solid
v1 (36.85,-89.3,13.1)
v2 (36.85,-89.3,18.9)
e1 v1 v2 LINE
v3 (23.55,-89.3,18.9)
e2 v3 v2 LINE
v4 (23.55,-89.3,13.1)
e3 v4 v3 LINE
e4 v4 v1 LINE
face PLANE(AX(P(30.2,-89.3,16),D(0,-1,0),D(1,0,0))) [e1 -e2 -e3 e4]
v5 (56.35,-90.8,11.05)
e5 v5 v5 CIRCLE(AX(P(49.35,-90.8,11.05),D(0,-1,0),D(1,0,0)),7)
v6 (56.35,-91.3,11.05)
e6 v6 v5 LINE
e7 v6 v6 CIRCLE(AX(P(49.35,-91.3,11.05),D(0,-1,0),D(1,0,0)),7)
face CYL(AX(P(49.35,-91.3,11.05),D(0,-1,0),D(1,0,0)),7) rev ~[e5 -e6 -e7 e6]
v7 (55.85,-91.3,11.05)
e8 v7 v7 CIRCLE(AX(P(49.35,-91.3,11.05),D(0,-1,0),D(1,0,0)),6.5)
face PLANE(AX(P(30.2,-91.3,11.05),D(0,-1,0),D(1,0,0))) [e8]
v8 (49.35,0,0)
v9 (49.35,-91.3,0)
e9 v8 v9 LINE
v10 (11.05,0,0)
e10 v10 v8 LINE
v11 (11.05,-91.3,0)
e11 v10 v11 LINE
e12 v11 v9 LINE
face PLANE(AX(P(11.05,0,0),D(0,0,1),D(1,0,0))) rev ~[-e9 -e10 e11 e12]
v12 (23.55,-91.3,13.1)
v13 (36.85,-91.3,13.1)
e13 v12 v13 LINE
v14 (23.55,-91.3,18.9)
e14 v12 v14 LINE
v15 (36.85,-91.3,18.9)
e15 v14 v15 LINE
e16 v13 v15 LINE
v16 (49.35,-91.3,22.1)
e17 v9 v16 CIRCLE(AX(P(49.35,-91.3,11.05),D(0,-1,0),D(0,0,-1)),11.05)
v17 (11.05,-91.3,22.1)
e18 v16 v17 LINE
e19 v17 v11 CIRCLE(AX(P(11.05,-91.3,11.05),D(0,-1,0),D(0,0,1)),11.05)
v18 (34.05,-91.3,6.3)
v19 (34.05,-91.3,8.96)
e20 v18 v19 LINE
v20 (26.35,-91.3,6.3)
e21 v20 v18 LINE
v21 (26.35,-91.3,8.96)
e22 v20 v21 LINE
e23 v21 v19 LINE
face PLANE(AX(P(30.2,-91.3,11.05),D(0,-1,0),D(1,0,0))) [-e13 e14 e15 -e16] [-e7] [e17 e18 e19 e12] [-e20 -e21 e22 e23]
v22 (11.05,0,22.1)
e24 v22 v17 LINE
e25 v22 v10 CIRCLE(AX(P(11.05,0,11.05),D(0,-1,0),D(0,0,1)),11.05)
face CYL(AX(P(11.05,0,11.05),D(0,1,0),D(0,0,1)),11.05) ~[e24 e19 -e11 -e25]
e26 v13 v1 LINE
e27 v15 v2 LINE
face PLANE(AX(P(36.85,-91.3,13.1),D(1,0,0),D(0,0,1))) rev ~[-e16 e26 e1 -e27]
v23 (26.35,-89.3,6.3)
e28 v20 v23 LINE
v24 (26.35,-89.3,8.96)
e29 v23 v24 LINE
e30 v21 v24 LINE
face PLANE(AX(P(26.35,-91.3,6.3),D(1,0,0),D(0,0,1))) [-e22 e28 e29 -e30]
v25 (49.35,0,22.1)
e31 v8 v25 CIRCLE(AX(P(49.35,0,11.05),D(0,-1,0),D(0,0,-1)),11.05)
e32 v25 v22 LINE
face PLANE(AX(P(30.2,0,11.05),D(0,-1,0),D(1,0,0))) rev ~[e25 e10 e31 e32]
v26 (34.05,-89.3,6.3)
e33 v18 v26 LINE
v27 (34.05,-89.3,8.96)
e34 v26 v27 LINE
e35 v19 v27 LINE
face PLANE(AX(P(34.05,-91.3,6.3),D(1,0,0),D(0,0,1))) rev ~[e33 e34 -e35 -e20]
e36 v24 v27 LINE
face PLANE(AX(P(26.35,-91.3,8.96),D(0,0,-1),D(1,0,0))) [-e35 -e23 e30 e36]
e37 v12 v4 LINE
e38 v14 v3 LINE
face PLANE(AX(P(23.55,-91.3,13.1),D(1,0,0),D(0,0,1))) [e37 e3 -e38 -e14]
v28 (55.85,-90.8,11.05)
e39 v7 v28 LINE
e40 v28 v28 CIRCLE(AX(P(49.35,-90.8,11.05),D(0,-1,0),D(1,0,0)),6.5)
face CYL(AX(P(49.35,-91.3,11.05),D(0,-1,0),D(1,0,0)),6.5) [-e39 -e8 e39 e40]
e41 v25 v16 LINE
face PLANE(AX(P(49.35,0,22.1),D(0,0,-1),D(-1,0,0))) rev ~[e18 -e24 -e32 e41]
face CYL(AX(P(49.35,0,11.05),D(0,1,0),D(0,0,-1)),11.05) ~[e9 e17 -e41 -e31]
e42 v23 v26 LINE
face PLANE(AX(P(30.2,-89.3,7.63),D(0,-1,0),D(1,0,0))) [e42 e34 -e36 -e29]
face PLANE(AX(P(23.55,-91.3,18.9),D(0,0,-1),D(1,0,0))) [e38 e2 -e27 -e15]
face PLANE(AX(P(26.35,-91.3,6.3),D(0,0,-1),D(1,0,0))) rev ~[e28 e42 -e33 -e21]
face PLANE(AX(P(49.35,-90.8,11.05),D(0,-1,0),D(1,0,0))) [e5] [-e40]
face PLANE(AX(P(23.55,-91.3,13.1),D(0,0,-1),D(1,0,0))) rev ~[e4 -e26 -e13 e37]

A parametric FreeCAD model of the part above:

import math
import FreeCAD as App
import Part
import Sketcher
Q = App.Units.Quantity

doc = App.newDocument("Part")
body = doc.addObject("PartDesign::Body", "Body")

# Sketch on XZ plane
sketch1 = body.newObject("Sketcher::SketchObject", "Sketch")
sketch1.AttachmentSupport = (doc.getObject("XZ_Plane"), [""])
sketch1.MapMode = "FlatFace"
sketch1.addGeometry([
    Part.LineSegment(App.Vector(49.35, 22.1, 0), App.Vector(11.05, 22.1, 0)),
    Part.ArcOfCircle(Part.Circle(App.Vector(11.05, 11.05, 0), App.Vector(0, 0, 1), 11.05), math.radians(90), math.radians(270)),
    Part.LineSegment(App.Vector(11.05, 0, 0), App.Vector(49.35, 0, 0)),
    Part.ArcOfCircle(Part.Circle(App.Vector(49.35, 11.05, 0), App.Vector(0, 0, 1), 11.05), math.radians(-90), math.radians(90)),
], False)
sketch1.addConstraint([
    Sketcher.Constraint("Tangent", 0, 2, 1, 1),
    Sketcher.Constraint("Tangent", 1, 2, 2, 1),
    Sketcher.Constraint("Tangent", 2, 2, 3, 1),
    Sketcher.Constraint("Tangent", 3, 2, 0, 1),
    Sketcher.Constraint("Horizontal", 0),
    Sketcher.Constraint("Horizontal", 2),
    Sketcher.Constraint("PointOnObject", 1, 2, -1),
    Sketcher.Constraint("Radius", 1, Q("11.05 mm")),
    Sketcher.Constraint("DistanceX", 0, 2, 0, 1, Q("38.3 mm")),
    Sketcher.Constraint("DistanceX", -1, 1, 1, 3, Q("11.05 mm")),
])
pad1 = body.newObject("PartDesign::Pad", "Pad")
pad1.Profile = sketch1
pad1.Length = 91.3

# Sketch on XZ plane
sketch2 = body.newObject("Sketcher::SketchObject", "Sketch001")
sketch2.AttachmentSupport = (doc.getObject("XZ_Plane"), [""])
sketch2.MapMode = "FlatFace"
sketch2.AttachmentOffset = App.Placement(App.Vector(0, 0, 91.3), App.Rotation())
sketch2.addGeometry([
    Part.LineSegment(App.Vector(23.55, 18.9, 0), App.Vector(23.55, 13.1, 0)),  # 0
    Part.LineSegment(App.Vector(23.55, 13.1, 0), App.Vector(36.85, 13.1, 0)),  # 1
    Part.LineSegment(App.Vector(36.85, 13.1, 0), App.Vector(36.85, 18.9, 0)),  # 2
    Part.LineSegment(App.Vector(36.85, 18.9, 0), App.Vector(23.55, 18.9, 0)),  # 3
    Part.LineSegment(App.Vector(26.35, 8.96, 0), App.Vector(26.35, 6.3, 0)),  # 4
    Part.LineSegment(App.Vector(26.35, 6.3, 0), App.Vector(34.05, 6.3, 0)),  # 5
    Part.LineSegment(App.Vector(34.05, 6.3, 0), App.Vector(34.05, 8.96, 0)),  # 6
    Part.LineSegment(App.Vector(34.05, 8.96, 0), App.Vector(26.35, 8.96, 0)),  # 7
], False)
sketch2.addConstraint([
    Sketcher.Constraint("Coincident", 0, 2, 1, 1),
    Sketcher.Constraint("Coincident", 1, 2, 2, 1),
    Sketcher.Constraint("Coincident", 2, 2, 3, 1),
    Sketcher.Constraint("Coincident", 3, 2, 0, 1),
    Sketcher.Constraint("Coincident", 4, 2, 5, 1),
    Sketcher.Constraint("Coincident", 5, 2, 6, 1),
    Sketcher.Constraint("Coincident", 6, 2, 7, 1),
    Sketcher.Constraint("Coincident", 7, 2, 4, 1),
    Sketcher.Constraint("Vertical", 0),
    Sketcher.Constraint("Horizontal", 1),
    Sketcher.Constraint("Vertical", 2),
    Sketcher.Constraint("Horizontal", 3),
    Sketcher.Constraint("Vertical", 4),
    Sketcher.Constraint("Horizontal", 5),
    Sketcher.Constraint("Vertical", 6),
    Sketcher.Constraint("Horizontal", 7),
    Sketcher.Constraint("DistanceX", 1, 1, 1, 2, Q("13.3 mm")),
    Sketcher.Constraint("DistanceX", 5, 1, 5, 2, Q("7.7 mm")),
    Sketcher.Constraint("DistanceY", 0, 2, 0, 1, Q("5.8 mm")),
    Sketcher.Constraint("DistanceY", 4, 2, 4, 1, Q("2.66 mm")),
    Sketcher.Constraint("DistanceY", -1, 1, 0, 2, Q("13.1 mm")),
    Sketcher.Constraint("DistanceY", -1, 1, 4, 2, Q("6.3 mm")),
    Sketcher.Constraint("DistanceX", 0, 2, 4, 2, Q("2.8 mm")),
    Sketcher.Constraint("DistanceX", -1, 1, 0, 2, Q("23.55 mm")),
])
pocket1 = body.newObject("PartDesign::Pocket", "Pocket")
pocket1.Profile = sketch2
pocket1.Length = 2

# Sketch on XZ plane
sketch3 = body.newObject("Sketcher::SketchObject", "Sketch002")
sketch3.AttachmentSupport = (doc.getObject("XZ_Plane"), [""])
sketch3.MapMode = "FlatFace"
sketch3.AttachmentOffset = App.Placement(App.Vector(0, 0, 91.3), App.Rotation())
sketch3.addGeometry([
    Part.Circle(App.Vector(49.35, 11.05, 0), App.Vector(0, 0, 1), 7),
    Part.Circle(App.Vector(49.35, 11.05, 0), App.Vector(0, 0, 1), 6.5),
], False)
sketch3.addConstraint([
    Sketcher.Constraint("Coincident", 1, 3, 0, 3),
    Sketcher.Constraint("Diameter", 0, Q("14 mm")),
    Sketcher.Constraint("Diameter", 1, Q("13 mm")),
    Sketcher.Constraint("DistanceX", -1, 1, 0, 3, Q("49.35 mm")),
    Sketcher.Constraint("DistanceY", -1, 1, 0, 3, Q("11.05 mm")),
])
pocket2 = body.newObject("PartDesign::Pocket", "Pocket001")
pocket2.Profile = sketch3
pocket2.Length = 0.5

doc.recompute()
